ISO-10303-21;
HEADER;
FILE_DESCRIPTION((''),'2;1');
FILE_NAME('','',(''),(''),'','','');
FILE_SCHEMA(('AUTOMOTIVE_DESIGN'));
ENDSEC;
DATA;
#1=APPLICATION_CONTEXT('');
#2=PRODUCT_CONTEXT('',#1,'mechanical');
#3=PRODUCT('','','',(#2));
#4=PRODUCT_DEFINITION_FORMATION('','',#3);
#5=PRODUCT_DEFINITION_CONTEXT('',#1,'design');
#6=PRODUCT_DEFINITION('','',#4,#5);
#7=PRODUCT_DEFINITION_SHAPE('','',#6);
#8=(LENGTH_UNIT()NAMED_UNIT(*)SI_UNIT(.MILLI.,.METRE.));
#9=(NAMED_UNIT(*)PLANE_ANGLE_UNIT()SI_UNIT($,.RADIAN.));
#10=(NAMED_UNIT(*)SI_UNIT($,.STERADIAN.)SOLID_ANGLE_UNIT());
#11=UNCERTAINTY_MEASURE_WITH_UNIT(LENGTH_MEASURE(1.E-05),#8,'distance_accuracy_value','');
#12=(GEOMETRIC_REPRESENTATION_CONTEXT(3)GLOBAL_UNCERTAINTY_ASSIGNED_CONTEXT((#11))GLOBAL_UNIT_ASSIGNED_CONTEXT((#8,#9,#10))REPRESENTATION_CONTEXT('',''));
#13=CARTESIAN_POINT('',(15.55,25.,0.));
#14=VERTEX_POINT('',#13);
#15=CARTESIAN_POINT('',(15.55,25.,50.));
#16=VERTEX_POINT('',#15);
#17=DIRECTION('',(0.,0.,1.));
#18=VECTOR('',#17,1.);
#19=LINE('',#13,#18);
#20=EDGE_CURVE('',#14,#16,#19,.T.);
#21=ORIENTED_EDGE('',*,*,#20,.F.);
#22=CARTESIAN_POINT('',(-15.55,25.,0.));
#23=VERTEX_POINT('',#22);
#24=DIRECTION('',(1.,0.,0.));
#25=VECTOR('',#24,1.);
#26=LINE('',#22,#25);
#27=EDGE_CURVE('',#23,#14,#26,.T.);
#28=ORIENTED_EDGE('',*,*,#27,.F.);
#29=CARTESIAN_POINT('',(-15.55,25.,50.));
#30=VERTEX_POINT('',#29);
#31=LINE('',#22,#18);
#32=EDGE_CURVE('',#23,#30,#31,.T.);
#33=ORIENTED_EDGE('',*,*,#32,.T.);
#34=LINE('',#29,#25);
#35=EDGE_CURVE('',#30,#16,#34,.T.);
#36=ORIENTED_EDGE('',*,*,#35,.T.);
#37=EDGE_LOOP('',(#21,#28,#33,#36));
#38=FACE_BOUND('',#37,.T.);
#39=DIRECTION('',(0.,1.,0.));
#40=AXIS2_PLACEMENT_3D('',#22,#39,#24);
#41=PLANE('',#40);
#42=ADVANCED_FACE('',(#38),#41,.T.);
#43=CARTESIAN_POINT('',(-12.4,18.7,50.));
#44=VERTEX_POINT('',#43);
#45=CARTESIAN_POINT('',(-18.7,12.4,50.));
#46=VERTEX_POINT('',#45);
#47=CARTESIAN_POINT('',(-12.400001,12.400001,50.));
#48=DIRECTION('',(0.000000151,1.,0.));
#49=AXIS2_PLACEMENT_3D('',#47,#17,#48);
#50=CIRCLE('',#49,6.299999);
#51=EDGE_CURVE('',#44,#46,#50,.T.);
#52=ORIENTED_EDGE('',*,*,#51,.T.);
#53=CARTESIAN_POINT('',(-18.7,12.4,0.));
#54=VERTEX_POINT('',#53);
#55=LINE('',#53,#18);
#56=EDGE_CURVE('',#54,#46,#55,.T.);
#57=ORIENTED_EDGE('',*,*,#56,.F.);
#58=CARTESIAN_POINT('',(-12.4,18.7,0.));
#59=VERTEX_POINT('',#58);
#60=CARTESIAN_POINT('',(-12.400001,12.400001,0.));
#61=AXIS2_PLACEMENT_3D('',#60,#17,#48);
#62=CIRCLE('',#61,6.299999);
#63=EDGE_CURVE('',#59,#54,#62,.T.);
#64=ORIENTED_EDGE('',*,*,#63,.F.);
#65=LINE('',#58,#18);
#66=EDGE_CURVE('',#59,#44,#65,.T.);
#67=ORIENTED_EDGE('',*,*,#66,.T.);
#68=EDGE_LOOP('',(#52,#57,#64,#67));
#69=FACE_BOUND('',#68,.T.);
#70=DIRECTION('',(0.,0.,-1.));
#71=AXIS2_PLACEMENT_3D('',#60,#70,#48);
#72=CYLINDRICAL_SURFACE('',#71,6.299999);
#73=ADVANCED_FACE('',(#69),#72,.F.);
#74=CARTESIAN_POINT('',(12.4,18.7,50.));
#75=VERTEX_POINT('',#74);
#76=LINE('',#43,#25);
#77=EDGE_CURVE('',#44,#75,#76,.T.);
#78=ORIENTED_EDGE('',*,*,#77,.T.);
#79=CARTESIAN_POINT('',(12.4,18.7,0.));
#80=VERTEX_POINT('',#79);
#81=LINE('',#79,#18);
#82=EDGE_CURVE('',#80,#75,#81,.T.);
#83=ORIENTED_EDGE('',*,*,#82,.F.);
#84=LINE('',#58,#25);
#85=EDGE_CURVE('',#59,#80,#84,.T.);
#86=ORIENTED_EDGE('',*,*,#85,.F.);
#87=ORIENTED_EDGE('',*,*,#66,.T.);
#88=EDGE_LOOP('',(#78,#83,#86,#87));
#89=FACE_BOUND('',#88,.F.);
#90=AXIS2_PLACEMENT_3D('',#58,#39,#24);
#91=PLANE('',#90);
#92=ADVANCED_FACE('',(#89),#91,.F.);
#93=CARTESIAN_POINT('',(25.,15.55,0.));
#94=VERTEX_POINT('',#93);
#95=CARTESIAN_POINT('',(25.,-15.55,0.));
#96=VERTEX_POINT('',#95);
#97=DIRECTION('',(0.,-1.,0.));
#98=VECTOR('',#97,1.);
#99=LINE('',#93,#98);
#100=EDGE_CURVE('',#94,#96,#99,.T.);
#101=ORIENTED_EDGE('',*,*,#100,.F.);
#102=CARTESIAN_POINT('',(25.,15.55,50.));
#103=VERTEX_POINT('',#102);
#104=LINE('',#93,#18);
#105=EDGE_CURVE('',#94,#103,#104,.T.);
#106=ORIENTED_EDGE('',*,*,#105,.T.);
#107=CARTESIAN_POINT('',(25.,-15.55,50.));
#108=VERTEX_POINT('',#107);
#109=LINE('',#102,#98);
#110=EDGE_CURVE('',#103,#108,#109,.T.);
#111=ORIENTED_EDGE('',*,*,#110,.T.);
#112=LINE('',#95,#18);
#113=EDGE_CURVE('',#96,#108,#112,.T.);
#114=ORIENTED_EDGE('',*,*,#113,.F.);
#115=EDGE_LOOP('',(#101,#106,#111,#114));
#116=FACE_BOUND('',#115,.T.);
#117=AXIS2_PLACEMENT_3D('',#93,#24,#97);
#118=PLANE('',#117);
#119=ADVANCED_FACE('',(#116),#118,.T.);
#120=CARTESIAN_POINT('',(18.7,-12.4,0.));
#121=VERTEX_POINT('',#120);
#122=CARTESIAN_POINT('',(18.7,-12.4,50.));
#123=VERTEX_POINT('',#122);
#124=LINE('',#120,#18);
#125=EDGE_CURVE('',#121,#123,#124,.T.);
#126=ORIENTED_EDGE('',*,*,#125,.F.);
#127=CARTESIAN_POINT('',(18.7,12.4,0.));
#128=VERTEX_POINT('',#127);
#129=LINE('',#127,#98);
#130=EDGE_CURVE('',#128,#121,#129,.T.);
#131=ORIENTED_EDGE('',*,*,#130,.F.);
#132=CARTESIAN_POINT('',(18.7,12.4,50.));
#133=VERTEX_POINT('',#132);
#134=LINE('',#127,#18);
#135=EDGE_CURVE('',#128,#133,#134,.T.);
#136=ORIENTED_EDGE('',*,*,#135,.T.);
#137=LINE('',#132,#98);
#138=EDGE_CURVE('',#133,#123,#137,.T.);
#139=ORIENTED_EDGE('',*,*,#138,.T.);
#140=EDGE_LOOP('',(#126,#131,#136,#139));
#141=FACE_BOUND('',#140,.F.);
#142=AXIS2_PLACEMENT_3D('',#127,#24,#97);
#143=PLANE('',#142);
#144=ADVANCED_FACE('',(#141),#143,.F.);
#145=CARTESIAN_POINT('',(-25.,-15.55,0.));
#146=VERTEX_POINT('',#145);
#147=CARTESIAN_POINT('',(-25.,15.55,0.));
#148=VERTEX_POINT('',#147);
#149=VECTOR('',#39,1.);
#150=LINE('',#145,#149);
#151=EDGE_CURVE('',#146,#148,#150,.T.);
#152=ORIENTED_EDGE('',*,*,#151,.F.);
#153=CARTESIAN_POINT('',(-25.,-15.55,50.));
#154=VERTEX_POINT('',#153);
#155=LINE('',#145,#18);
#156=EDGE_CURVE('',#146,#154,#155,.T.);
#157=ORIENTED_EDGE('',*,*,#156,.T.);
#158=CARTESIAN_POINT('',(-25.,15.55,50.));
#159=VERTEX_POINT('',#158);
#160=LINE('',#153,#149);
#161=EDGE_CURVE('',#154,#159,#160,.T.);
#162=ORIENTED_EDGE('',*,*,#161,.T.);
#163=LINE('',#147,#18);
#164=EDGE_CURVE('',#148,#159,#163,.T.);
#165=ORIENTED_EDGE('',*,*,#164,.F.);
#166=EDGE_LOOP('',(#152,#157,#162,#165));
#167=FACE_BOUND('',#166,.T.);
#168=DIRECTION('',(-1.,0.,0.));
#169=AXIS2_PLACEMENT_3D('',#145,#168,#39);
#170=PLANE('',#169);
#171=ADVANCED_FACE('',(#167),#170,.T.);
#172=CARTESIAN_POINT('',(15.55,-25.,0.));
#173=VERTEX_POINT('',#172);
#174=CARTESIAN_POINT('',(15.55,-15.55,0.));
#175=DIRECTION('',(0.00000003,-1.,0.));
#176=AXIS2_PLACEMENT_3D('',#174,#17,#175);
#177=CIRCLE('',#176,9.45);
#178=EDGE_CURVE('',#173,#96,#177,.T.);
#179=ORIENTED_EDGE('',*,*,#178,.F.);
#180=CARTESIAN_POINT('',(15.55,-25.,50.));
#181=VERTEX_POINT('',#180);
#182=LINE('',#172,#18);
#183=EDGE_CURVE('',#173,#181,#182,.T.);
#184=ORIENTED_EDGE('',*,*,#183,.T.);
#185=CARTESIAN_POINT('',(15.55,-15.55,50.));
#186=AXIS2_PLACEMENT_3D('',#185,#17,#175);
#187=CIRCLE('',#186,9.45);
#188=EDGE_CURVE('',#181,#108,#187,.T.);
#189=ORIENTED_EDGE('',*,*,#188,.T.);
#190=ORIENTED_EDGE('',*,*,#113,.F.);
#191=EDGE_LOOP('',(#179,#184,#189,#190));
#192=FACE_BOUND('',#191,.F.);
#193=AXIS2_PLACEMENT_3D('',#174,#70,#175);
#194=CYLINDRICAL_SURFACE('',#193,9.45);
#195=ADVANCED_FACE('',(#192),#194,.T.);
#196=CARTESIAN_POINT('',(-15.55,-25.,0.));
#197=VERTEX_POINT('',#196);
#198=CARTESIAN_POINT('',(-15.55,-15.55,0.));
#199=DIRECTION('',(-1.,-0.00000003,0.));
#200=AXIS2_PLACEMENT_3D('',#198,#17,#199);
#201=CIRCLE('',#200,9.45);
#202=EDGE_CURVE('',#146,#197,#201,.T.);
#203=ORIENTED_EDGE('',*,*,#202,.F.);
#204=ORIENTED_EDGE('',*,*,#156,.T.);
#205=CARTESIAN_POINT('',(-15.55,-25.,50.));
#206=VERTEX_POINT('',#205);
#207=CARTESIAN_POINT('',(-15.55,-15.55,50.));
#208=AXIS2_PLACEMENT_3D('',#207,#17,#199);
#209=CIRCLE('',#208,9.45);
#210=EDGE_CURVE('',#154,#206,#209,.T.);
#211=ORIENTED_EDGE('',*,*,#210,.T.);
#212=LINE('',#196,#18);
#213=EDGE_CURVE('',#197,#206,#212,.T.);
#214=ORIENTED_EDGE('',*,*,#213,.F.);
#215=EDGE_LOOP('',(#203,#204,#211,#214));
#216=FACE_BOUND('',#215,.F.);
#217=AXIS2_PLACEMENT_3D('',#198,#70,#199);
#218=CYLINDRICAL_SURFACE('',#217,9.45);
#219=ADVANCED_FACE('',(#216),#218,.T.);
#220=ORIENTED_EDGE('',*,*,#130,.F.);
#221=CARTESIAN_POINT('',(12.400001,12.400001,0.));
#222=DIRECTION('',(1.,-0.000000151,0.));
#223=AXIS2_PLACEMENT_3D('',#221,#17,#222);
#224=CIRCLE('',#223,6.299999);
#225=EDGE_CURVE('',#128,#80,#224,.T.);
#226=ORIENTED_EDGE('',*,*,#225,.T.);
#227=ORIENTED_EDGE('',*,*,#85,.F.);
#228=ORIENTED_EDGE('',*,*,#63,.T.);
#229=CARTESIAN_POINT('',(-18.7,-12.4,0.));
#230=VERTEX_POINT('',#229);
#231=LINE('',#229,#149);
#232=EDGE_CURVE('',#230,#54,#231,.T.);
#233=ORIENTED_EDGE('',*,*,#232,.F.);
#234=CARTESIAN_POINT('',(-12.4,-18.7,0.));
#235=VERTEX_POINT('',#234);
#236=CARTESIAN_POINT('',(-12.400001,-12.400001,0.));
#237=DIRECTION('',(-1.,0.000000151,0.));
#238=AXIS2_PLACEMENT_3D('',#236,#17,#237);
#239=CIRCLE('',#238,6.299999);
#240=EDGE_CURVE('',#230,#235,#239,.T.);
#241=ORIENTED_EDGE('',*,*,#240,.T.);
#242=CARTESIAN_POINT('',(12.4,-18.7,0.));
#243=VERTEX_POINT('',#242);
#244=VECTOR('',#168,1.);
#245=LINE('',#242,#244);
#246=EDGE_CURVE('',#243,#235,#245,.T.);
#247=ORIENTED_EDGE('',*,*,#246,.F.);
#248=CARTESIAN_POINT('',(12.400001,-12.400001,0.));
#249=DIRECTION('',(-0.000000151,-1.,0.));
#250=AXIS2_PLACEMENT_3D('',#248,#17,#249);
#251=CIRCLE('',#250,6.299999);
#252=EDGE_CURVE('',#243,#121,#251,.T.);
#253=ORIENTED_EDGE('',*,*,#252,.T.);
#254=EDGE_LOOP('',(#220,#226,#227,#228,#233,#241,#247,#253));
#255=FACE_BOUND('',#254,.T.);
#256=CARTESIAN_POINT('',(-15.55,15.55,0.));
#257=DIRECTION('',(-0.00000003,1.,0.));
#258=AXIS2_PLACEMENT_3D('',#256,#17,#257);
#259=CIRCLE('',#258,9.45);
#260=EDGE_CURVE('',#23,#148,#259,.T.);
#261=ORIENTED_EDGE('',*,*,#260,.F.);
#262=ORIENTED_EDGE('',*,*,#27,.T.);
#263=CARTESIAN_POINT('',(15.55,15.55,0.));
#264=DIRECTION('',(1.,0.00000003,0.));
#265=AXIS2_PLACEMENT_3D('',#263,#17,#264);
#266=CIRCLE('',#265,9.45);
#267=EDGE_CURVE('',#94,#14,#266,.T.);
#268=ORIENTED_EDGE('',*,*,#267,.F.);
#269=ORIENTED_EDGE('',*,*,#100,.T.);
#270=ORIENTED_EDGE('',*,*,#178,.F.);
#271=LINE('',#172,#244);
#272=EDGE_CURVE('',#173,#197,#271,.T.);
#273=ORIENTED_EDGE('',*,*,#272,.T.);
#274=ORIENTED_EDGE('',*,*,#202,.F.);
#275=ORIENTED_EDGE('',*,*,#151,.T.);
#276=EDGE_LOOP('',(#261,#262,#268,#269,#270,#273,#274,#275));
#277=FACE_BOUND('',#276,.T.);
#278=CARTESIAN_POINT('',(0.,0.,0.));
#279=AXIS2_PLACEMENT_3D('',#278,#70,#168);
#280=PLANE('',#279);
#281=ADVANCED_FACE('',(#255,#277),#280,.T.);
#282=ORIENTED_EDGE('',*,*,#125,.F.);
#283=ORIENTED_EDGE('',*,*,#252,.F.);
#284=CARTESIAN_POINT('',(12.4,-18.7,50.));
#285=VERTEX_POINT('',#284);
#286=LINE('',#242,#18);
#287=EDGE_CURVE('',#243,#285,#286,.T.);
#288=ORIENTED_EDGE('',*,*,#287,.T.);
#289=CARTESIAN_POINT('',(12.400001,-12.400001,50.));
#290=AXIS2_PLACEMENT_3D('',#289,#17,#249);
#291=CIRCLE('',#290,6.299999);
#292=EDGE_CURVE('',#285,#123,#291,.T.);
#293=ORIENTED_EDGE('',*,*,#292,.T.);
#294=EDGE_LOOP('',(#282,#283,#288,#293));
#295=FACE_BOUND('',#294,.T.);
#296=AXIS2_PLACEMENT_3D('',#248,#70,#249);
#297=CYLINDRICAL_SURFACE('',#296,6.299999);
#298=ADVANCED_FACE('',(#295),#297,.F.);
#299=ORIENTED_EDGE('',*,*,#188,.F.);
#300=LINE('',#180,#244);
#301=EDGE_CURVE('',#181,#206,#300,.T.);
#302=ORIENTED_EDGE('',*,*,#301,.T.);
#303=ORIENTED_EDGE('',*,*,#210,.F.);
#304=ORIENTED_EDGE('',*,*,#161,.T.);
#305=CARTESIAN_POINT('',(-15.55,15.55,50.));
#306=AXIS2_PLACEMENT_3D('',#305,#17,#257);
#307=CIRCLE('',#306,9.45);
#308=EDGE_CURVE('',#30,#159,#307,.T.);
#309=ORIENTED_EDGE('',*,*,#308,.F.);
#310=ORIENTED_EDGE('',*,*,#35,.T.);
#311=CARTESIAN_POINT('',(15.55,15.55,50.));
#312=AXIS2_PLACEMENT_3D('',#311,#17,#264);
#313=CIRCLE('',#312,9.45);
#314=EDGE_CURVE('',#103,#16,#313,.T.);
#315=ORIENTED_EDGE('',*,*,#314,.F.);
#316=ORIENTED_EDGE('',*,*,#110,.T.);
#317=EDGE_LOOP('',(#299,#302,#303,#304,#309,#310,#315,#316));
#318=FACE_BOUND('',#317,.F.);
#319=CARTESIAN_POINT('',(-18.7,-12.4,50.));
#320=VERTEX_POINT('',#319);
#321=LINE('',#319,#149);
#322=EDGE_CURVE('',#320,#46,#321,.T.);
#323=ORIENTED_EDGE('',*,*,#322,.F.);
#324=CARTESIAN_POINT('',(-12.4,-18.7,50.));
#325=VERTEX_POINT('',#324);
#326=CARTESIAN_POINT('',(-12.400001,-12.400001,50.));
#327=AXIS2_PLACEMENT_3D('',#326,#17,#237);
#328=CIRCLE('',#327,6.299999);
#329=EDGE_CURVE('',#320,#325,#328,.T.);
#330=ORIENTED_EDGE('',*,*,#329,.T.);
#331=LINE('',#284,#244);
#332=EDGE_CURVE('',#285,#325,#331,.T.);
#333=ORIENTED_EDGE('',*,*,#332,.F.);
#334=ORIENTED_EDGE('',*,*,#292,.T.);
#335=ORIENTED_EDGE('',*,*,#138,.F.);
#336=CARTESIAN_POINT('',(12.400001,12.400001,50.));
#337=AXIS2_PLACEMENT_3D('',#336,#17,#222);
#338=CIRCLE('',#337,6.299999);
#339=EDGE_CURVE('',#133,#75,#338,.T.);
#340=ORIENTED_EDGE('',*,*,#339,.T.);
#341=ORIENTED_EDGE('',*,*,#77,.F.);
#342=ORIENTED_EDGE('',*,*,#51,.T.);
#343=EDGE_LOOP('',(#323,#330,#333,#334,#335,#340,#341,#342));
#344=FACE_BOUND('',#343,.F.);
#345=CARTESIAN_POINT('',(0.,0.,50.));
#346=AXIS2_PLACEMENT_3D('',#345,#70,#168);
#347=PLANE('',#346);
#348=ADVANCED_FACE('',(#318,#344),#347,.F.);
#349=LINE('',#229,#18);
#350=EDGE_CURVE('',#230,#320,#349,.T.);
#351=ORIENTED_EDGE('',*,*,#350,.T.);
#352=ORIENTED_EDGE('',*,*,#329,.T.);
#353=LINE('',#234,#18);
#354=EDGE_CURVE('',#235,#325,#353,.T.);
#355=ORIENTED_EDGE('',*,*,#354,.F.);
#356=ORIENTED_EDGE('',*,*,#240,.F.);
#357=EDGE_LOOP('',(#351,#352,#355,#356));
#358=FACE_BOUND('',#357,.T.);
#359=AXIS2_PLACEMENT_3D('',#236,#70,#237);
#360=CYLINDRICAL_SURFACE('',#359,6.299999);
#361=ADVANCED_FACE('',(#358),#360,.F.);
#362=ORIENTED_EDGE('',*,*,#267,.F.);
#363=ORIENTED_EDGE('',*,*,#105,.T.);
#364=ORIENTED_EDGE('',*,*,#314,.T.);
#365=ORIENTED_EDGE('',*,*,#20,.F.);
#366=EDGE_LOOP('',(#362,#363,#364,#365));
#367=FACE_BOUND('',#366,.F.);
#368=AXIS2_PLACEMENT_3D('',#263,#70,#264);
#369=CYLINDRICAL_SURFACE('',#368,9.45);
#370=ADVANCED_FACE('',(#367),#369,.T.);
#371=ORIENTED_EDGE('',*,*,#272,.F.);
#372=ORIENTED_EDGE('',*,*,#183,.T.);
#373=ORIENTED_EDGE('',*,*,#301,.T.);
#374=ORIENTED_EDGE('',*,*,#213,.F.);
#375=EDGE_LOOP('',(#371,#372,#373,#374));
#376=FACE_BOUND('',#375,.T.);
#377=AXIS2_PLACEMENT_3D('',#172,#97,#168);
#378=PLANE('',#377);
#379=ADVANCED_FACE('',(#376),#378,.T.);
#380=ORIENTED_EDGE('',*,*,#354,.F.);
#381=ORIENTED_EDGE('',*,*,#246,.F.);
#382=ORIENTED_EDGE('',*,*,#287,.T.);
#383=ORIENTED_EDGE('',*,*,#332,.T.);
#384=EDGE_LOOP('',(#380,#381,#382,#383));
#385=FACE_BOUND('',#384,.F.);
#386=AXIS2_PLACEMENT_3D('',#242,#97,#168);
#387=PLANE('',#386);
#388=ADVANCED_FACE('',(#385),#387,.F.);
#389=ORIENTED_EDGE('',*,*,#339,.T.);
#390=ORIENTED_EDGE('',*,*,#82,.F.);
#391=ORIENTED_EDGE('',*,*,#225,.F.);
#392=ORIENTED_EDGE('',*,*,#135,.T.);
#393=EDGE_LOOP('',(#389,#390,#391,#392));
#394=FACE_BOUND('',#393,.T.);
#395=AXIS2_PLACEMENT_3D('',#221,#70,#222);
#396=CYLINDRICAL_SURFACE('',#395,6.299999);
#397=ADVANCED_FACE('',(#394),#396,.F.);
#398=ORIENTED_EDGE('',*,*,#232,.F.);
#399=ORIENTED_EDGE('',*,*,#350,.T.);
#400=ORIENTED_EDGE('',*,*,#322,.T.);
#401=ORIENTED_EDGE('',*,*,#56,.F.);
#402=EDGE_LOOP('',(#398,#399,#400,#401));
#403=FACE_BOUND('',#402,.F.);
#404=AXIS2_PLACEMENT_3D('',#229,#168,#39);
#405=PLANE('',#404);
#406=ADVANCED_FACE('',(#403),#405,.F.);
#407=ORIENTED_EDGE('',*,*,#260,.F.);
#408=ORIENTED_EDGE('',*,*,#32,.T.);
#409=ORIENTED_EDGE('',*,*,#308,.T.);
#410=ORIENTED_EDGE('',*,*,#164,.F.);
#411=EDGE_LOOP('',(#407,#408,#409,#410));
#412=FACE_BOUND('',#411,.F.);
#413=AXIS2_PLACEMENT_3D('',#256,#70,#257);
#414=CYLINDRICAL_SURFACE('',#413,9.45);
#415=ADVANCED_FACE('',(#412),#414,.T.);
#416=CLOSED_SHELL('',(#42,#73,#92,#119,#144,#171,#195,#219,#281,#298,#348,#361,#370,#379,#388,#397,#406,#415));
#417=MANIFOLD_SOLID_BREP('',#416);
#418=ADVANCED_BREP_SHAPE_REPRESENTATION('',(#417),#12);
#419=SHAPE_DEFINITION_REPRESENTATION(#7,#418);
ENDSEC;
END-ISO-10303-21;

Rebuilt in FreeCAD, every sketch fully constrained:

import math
import FreeCAD as App
import Part
import Sketcher

V = App.Vector

doc = App.newDocument("Part")
body = doc.addObject("PartDesign::Body", "Body")

sketch1 = body.newObject("Sketcher::SketchObject", "Sketch")
sketch1.AttachmentSupport = (doc.getObject("XY_Plane"), [""])
sketch1.MapMode = "FlatFace"
sketch1.addGeometry(Part.LineSegment(V(16, 25, 0), V(-16, 25, 0)), False)
sketch1.addGeometry(Part.ArcOfCircle(Part.Circle(V(-16, 16, 0), V(0, 0, 1), 9), math.radians(90), math.radians(180)), False)
sketch1.addGeometry(Part.LineSegment(V(-25, 16, 0), V(-25, -16, 0)), False)
sketch1.addGeometry(Part.ArcOfCircle(Part.Circle(V(-16, -16, 0), V(0, 0, 1), 9), math.radians(-180), math.radians(-90)), False)
sketch1.addGeometry(Part.LineSegment(V(-16, -25, 0), V(16, -25, 0)), False)
sketch1.addGeometry(Part.ArcOfCircle(Part.Circle(V(16, -16, 0), V(0, 0, 1), 9), math.radians(-90), math.radians(0)), False)
sketch1.addGeometry(Part.LineSegment(V(25, -16, 0), V(25, 16, 0)), False)
sketch1.addGeometry(Part.ArcOfCircle(Part.Circle(V(16, 16, 0), V(0, 0, 1), 9), math.radians(0), math.radians(90)), False)
sketch1.addGeometry(Part.LineSegment(V(-12, 19, 0), V(12, 19, 0)), False)
sketch1.addGeometry(Part.ArcOfCircle(Part.Circle(V(12, 12, 0), V(0, 0, 1), 6), math.radians(0), math.radians(90)), False)
sketch1.addGeometry(Part.LineSegment(V(19, 12, 0), V(19, -12, 0)), False)
sketch1.addGeometry(Part.ArcOfCircle(Part.Circle(V(12, -12, 0), V(0, 0, 1), 6), math.radians(-90), math.radians(0)), False)
sketch1.addGeometry(Part.LineSegment(V(12, -19, 0), V(-12, -19, 0)), False)
sketch1.addGeometry(Part.ArcOfCircle(Part.Circle(V(-12, -12, 0), V(0, 0, 1), 6), math.radians(180), math.radians(270)), False)
sketch1.addGeometry(Part.LineSegment(V(-19, -12, 0), V(-19, 12, 0)), False)
sketch1.addGeometry(Part.ArcOfCircle(Part.Circle(V(-12, 12, 0), V(0, 0, 1), 6), math.radians(90), math.radians(180)), False)
sketch1.addConstraint(Sketcher.Constraint("Tangent", 0, 2, 1, 1))
sketch1.addConstraint(Sketcher.Constraint("Tangent", 1, 2, 2, 1))
sketch1.addConstraint(Sketcher.Constraint("Tangent", 2, 2, 3, 1))
sketch1.addConstraint(Sketcher.Constraint("Tangent", 3, 2, 4, 1))
sketch1.addConstraint(Sketcher.Constraint("Tangent", 4, 2, 5, 1))
sketch1.addConstraint(Sketcher.Constraint("Tangent", 5, 2, 6, 1))
sketch1.addConstraint(Sketcher.Constraint("Tangent", 6, 2, 7, 1))
sketch1.addConstraint(Sketcher.Constraint("Tangent", 7, 2, 0, 1))
sketch1.addConstraint(Sketcher.Constraint("Tangent", 8, 2, 9, 2))
sketch1.addConstraint(Sketcher.Constraint("Tangent", 9, 1, 10, 1))
sketch1.addConstraint(Sketcher.Constraint("Tangent", 10, 2, 11, 2))
sketch1.addConstraint(Sketcher.Constraint("Tangent", 11, 1, 12, 1))
sketch1.addConstraint(Sketcher.Constraint("Tangent", 12, 2, 13, 2))
sketch1.addConstraint(Sketcher.Constraint("Tangent", 13, 1, 14, 1))
sketch1.addConstraint(Sketcher.Constraint("Tangent", 14, 2, 15, 2))
sketch1.addConstraint(Sketcher.Constraint("Tangent", 15, 1, 8, 1))
sketch1.addConstraint(Sketcher.Constraint("Horizontal", 0))
sketch1.addConstraint(Sketcher.Constraint("Vertical", 2))
sketch1.addConstraint(Sketcher.Constraint("Horizontal", 4))
sketch1.addConstraint(Sketcher.Constraint("Vertical", 6))
sketch1.addConstraint(Sketcher.Constraint("Horizontal", 8))
sketch1.addConstraint(Sketcher.Constraint("Vertical", 10))
sketch1.addConstraint(Sketcher.Constraint("Horizontal", 12))
sketch1.addConstraint(Sketcher.Constraint("Vertical", 14))
sketch1.addConstraint(Sketcher.Constraint("Equal", 1, 3))
sketch1.addConstraint(Sketcher.Constraint("Equal", 3, 5))
sketch1.addConstraint(Sketcher.Constraint("Equal", 5, 7))
sketch1.addConstraint(Sketcher.Constraint("Equal", 9, 11))
sketch1.addConstraint(Sketcher.Constraint("Equal", 11, 13))
sketch1.addConstraint(Sketcher.Constraint("Equal", 13, 15))
sketch1.addConstraint(Sketcher.Constraint("Symmetric", 1, 3, 5, 3, -1, 1))
sketch1.addConstraint(Sketcher.Constraint("Symmetric", 9, 3, 13, 3, -1, 1))
sketch1.addConstraint(Sketcher.Constraint("Equal", 4, 2))
sketch1.addConstraint(Sketcher.Constraint("Equal", 12, 10))
sketch1.addConstraint(Sketcher.Constraint("Radius", 9, 6.299999))
sketch1.addConstraint(Sketcher.Constraint("Radius", 1, 9.45))
sketch1.addConstraint(Sketcher.Constraint("DistanceX", 0, 2, 0, 1, 31.1))
sketch1.addConstraint(Sketcher.Constraint("DistanceX", 8, 1, 8, 2, 24.8))
pad1 = body.newObject("PartDesign::Pad", "Pad")
pad1.Profile = sketch1
pad1.Length = 50

doc.recompute()
